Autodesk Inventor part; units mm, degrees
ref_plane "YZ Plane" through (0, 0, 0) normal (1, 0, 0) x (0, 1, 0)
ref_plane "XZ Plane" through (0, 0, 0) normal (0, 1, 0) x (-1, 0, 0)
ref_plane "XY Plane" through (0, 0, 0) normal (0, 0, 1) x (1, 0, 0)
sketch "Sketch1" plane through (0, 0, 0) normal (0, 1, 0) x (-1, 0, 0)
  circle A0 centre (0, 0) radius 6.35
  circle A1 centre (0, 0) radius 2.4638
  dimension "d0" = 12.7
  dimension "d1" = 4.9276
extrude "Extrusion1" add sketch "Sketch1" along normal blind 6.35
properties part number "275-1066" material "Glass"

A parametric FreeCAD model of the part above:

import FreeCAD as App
import Part
import Sketcher
from FreeCAD import Vector
Q = App.Units.Quantity

doc = App.newDocument("Part")
body = doc.addObject("PartDesign::Body", "Body")

sketch1 = body.newObject("Sketcher::SketchObject", "Sketch")
sketch1.AttachmentSupport = (doc.getObject("XZ_Plane"), [""])
sketch1.MapMode = "FlatFace"
sketch1.addGeometry(Part.Circle(Vector(0, 0, 0), Vector(0, 0, 1), 6.35), False)
sketch1.addGeometry(Part.Circle(Vector(0, 0, 0), Vector(0, 0, 1), 2.4638), False)
sketch1.addConstraint(Sketcher.Constraint("Coincident", 0, 3, -1, 1))
sketch1.addConstraint(Sketcher.Constraint("Coincident", 1, 3, -1, 1))
sketch1.addConstraint(Sketcher.Constraint("Diameter", 0, Q("0.5 in")))
sketch1.addConstraint(Sketcher.Constraint("Diameter", 1, Q("0.194 in")))
pad1 = body.newObject("PartDesign::Pad", "Pad")
pad1.Profile = sketch1
pad1.Length = Q("0.25 in")
pad1.Reversed = True

doc.recompute()
